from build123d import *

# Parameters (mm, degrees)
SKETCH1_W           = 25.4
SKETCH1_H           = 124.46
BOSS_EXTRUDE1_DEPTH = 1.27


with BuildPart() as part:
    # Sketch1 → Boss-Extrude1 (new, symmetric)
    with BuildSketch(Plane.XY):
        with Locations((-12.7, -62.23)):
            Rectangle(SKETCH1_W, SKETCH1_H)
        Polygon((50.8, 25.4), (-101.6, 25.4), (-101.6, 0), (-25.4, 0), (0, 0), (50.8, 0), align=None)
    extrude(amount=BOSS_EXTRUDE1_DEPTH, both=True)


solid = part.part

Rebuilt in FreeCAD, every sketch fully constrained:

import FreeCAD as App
import Part
import Sketcher
from FreeCAD import Vector
Q = App.Units.Quantity


def add_polygon(sketch, points):
    """Adds a closed chain of lines whose ends are joined by coincident constraints."""
    first, n = sketch.GeometryCount, len(points)
    for a, b in zip(points, points[1:] + points[:1]):
        sketch.addGeometry(Part.LineSegment(App.Vector(*a, 0), App.Vector(*b, 0)), False)
    for i in range(n):
        sketch.addConstraint(Sketcher.Constraint("Coincident", first + i, 2, first + (i + 1) % n, 1))

doc = App.newDocument("Part")
body = doc.addObject("PartDesign::Body", "Body")

# Sketch on XY plane
sketch1 = doc.addObject("Sketcher::SketchObject", "Sketch")
body.addObject(sketch1)
sketch1.AttachmentSupport = (doc.XY_Plane, [""])
sketch1.MapMode = "FlatFace"
add_polygon(sketch1, [(-25, 0), (-25, -124), (0, -124), (0, 0), (51, 0), (51, 25), (-102, 25), (-102, 0)])  # lines 0-7
sketch1.addConstraint(Sketcher.Constraint("Vertical", 0))
sketch1.addConstraint(Sketcher.Constraint("Horizontal", 1))
sketch1.addConstraint(Sketcher.Constraint("Vertical", 2))
sketch1.addConstraint(Sketcher.Constraint("Horizontal", 3))
sketch1.addConstraint(Sketcher.Constraint("Vertical", 4))
sketch1.addConstraint(Sketcher.Constraint("Horizontal", 5))
sketch1.addConstraint(Sketcher.Constraint("Vertical", 6))
sketch1.addConstraint(Sketcher.Constraint("Horizontal", 7))
sketch1.addConstraint(Sketcher.Constraint("Coincident", 2, 2, -1, 1))
sketch1.addConstraint(Sketcher.Constraint("PointOnObject", 6, 2, -1))
sketch1.addConstraint(Sketcher.Constraint("Equal", 1, 4))
sketch1.addConstraint(Sketcher.Constraint("DistanceX", 1, 1, 1, 2, Q("1 in")))
sketch1.addConstraint(Sketcher.Constraint("DistanceX", 3, 1, 3, 2, Q("2 in")))
sketch1.addConstraint(Sketcher.Constraint("DistanceX", 5, 2, 5, 1, Q("6 in")))
sketch1.addConstraint(Sketcher.Constraint("DistanceY", 0, 2, 0, 1, Q("4.9 in")))
pad1 = doc.addObject("PartDesign::Pad", "Pad")
body.addObject(pad1)
pad1.Profile = sketch1
pad1.Length = Q("0.1 in")
pad1.Midplane = True

doc.recompute()
